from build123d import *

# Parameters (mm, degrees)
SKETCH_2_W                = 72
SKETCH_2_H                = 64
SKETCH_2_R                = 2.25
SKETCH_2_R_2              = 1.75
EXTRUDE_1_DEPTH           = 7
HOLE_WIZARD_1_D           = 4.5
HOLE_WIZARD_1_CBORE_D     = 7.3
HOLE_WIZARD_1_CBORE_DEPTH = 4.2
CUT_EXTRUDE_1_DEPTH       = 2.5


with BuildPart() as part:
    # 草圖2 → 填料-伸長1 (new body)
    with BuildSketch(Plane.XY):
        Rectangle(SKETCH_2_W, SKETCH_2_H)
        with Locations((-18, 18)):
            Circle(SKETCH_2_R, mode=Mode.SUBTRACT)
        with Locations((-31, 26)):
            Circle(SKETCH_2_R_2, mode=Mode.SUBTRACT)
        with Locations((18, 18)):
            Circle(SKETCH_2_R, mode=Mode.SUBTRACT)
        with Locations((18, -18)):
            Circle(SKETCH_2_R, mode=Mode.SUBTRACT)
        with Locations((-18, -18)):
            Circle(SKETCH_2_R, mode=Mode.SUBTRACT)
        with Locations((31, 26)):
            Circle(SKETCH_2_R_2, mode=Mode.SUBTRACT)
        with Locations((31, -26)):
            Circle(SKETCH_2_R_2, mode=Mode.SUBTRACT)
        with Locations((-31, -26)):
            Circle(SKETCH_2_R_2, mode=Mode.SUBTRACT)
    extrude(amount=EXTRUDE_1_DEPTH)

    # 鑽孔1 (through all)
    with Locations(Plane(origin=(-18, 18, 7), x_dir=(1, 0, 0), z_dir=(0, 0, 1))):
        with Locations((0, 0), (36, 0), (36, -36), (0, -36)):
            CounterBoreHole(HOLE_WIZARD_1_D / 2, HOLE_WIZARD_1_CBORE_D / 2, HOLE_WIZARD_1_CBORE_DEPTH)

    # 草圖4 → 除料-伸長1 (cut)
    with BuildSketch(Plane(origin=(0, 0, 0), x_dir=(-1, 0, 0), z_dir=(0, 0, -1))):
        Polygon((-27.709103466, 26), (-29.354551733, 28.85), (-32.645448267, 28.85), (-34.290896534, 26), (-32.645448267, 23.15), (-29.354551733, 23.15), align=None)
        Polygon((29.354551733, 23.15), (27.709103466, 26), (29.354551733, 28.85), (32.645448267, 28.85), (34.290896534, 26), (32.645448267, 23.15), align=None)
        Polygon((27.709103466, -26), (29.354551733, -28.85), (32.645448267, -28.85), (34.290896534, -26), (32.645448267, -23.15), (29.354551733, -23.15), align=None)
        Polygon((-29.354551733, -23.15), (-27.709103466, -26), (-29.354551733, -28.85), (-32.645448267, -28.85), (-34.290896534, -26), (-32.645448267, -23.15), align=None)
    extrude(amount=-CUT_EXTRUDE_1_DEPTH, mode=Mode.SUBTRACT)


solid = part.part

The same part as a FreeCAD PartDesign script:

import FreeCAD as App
import Part
import Sketcher
from FreeCAD import Vector
Q = App.Units.Quantity


def add_polygon(sketch, points):
    """Adds a closed chain of lines whose ends are joined by coincident constraints."""
    first, n = sketch.GeometryCount, len(points)
    for a, b in zip(points, points[1:] + points[:1]):
        sketch.addGeometry(Part.LineSegment(App.Vector(*a, 0), App.Vector(*b, 0)), False)
    for i in range(n):
        sketch.addConstraint(Sketcher.Constraint("Coincident", first + i, 2, first + (i + 1) % n, 1))

doc = App.newDocument("Part")
params = doc.addObject("Spreadsheet::Sheet", "Params")
for row, (alias, value) in enumerate([
    ("sketch1_diameter", "3.5 mm"),
    ("sketch1_diameter2", "4.5 mm"),
    ("sketch1_width", "72 mm"),
    ("sketch1_height", "64 mm"),
    ("pad1_length", "7 mm"),
    ("sketch2_diameter", "4.5 mm"),
    ("hole_diameter", "4.5 mm"),
    ("hole_cbore_diameter", "7.3 mm"),
    ("hole_cbore_depth", "4.2 mm"),
    ("pocket1_length", "2.5 mm"),
], start=1):
    params.set(f"A{row}", alias)
    params.set(f"B{row}", "=" + value)
    params.setAlias(f"B{row}", alias)

body = doc.addObject("PartDesign::Body", "Body")

sketch1 = body.newObject("Sketcher::SketchObject", "Sketch")
sketch1.AttachmentSupport = (doc.getObject("XY_Plane"), [""])
sketch1.MapMode = "FlatFace"
add_polygon(sketch1, [(-36, 32), (-36, -32), (36, -32), (36, 32)])
sketch1.addGeometry(Part.Circle(Vector(-31, -26, 0), Vector(0, 0, 1), 1.8), False)
sketch1.addGeometry(Part.Circle(Vector(-18, -18, 0), Vector(0, 0, 1), 2.2), False)
sketch1.addGeometry(Part.Circle(Vector(31, -26, 0), Vector(0, 0, 1), 1.8), False)
sketch1.addGeometry(Part.Circle(Vector(18, -18, 0), Vector(0, 0, 1), 2.2), False)
sketch1.addGeometry(Part.Circle(Vector(-18, 18, 0), Vector(0, 0, 1), 2.2), False)
sketch1.addGeometry(Part.Circle(Vector(-31, 26, 0), Vector(0, 0, 1), 1.8), False)
sketch1.addGeometry(Part.Circle(Vector(18, 18, 0), Vector(0, 0, 1), 2.2), False)
sketch1.addGeometry(Part.Circle(Vector(31, 26, 0), Vector(0, 0, 1), 1.8), False)
sketch1.addConstraint([
    Sketcher.Constraint("Vertical", 0),
    Sketcher.Constraint("Horizontal", 1),
    Sketcher.Constraint("Vertical", 2),
    Sketcher.Constraint("Horizontal", 3),
    Sketcher.Constraint("Equal", 4, 6),
    Sketcher.Constraint("Equal", 5, 7),
    Sketcher.Constraint("Equal", 7, 8),
    Sketcher.Constraint("Equal", 6, 9),
    Sketcher.Constraint("Equal", 8, 10),
    Sketcher.Constraint("Equal", 9, 11),
    Sketcher.Constraint("Symmetric", 7, 3, 8, 3, -1, 1),
    Sketcher.Constraint("Symmetric", 6, 3, 9, 3, -1, 1),
    Sketcher.Constraint("Symmetric", 5, 3, 10, 3, -1, 1),
    Sketcher.Constraint("Symmetric", 4, 3, 11, 3, -1, 1),
    Sketcher.Constraint("Symmetric", 0, 2, 2, 2, -1, 1),
    Sketcher.Constraint("Symmetric", 4, 3, 6, 3, -2),
    Sketcher.Constraint("Symmetric", 5, 3, 7, 3, -2),
    Sketcher.Constraint("Diameter", 4, Q("3.5 mm")),
    Sketcher.Constraint("Diameter", 5, Q("4.5 mm")),
    Sketcher.Constraint("DistanceX", 1, 1, 1, 2, Q("72 mm")),
    Sketcher.Constraint("DistanceY", 0, 2, 0, 1, Q("64 mm")),
    Sketcher.Constraint("DistanceX", 4, 3, -1, 1, Q("31 mm")),
    Sketcher.Constraint("DistanceY", 4, 3, -1, 1, Q("26 mm")),
    Sketcher.Constraint("DistanceX", 5, 3, -1, 1, Q("18 mm")),
    Sketcher.Constraint("DistanceY", 5, 3, -1, 1, Q("18 mm")),
])
sketch1.setExpression("Constraints[21]", "Params.sketch1_diameter")
sketch1.setExpression("Constraints[22]", "Params.sketch1_diameter2")
sketch1.setExpression("Constraints[23]", "Params.sketch1_width")
sketch1.setExpression("Constraints[24]", "Params.sketch1_height")
pad1 = body.newObject("PartDesign::Pad", "Pad")
pad1.Profile = sketch1
pad1.setExpression("Length", "Params.pad1_length")

sketch2 = body.newObject("Sketcher::SketchObject", "Sketch001")
sketch2.AttachmentSupport = (doc.getObject("XY_Plane"), [""])
sketch2.MapMode = "FlatFace"
sketch2.AttachmentOffset = App.Placement(Vector(0, 0, 7), App.Rotation())
sketch2.addGeometry([
    Part.Circle(Vector(-18, 18, 0), Vector(0, 0, 1), 2.2),
    Part.Circle(Vector(18, 18, 0), Vector(0, 0, 1), 2.2),
    Part.Circle(Vector(18, -18, 0), Vector(0, 0, 1), 2.2),
    Part.Circle(Vector(-18, -18, 0), Vector(0, 0, 1), 2.2),
], False)
sketch2.addConstraint([
    Sketcher.Constraint("Equal", 0, 1),
    Sketcher.Constraint("Equal", 1, 2),
    Sketcher.Constraint("Equal", 2, 3),
    Sketcher.Constraint("Symmetric", 0, 3, 2, 3, -1, 1),
    Sketcher.Constraint("Symmetric", 1, 3, 3, 3, -1, 1),
    Sketcher.Constraint("Symmetric", 0, 3, 1, 3, -2),
    Sketcher.Constraint("Diameter", 0, Q("4.5 mm")),
    Sketcher.Constraint("DistanceX", 0, 3, -1, 1, Q("18 mm")),
    Sketcher.Constraint("DistanceY", -1, 1, 0, 3, Q("18 mm")),
])
sketch2.setExpression("Constraints[6]", "Params.sketch2_diameter")
doc.recompute()
hole = body.newObject("PartDesign::Hole", "Hole")
hole.Profile = sketch2
hole.ThreadType = "None"
hole.setExpression("Diameter", "Params.hole_diameter")
hole.DepthType = "ThroughAll"
hole.HoleCutType = "Counterbore"
hole.setExpression("HoleCutDiameter", "Params.hole_cbore_diameter")
hole.setExpression("HoleCutDepth", "Params.hole_cbore_depth")

sketch3 = body.newObject("Sketcher::SketchObject", "Sketch002")
sketch3.AttachmentSupport = (doc.getObject("XY_Plane"), [""])
sketch3.MapMode = "FlatFace"
add_polygon(sketch3, [(27.7, 26), (29.4, 28.9), (32.6, 28.9), (34.3, 26), (32.6, 23.1), (29.4, 23.1)])
add_polygon(sketch3, [(-27.7, 26), (-29.4, 23.1), (-32.6, 23.1), (-34.3, 26), (-32.6, 28.9), (-29.4, 28.9)])
add_polygon(sketch3, [(-27.7, -26), (-29.4, -28.9), (-32.6, -28.9), (-34.3, -26), (-32.6, -23.1), (-29.4, -23.1)])
add_polygon(sketch3, [(27.7, -26), (29.4, -23.1), (32.6, -23.1), (34.3, -26), (32.6, -28.9), (29.4, -28.9)])
sketch3.addConstraint([
    Sketcher.Constraint("Horizontal", 1),
    Sketcher.Constraint("Horizontal", 4),
    Sketcher.Constraint("Horizontal", 7),
    Sketcher.Constraint("Horizontal", 10),
    Sketcher.Constraint("Horizontal", 13),
    Sketcher.Constraint("Horizontal", 16),
    Sketcher.Constraint("Horizontal", 19),
    Sketcher.Constraint("Horizontal", 22),
    Sketcher.Constraint("Symmetric", 0, 2, 12, 2, -1, 1),
    Sketcher.Constraint("Symmetric", 2, 2, 14, 2, -1, 1),
    Sketcher.Constraint("Symmetric", 3, 2, 15, 2, -1, 1),
    Sketcher.Constraint("Symmetric", 5, 2, 17, 2, -1, 1),
    Sketcher.Constraint("Symmetric", 6, 2, 18, 2, -1, 1),
    Sketcher.Constraint("Symmetric", 8, 2, 20, 2, -1, 1),
    Sketcher.Constraint("Symmetric", 9, 2, 21, 2, -1, 1),
    Sketcher.Constraint("Symmetric", 11, 2, 23, 2, -1, 1),
    Sketcher.Constraint("Symmetric", 4, 2, 6, 2, -2),
    Sketcher.Constraint("Symmetric", 2, 2, 8, 2, -2),
    Sketcher.Constraint("Symmetric", 1, 2, 9, 2, -2),
    Sketcher.Constraint("Symmetric", 5, 2, 11, 2, -2),
    Sketcher.Constraint("Parallel", 0, 3),
    Sketcher.Constraint("Parallel", 2, 5),
    Sketcher.Constraint("Parallel", 3, 6),
    Sketcher.Constraint("Parallel", 5, 8),
    Sketcher.Constraint("Parallel", 8, 11),
    Sketcher.Constraint("Parallel", 11, 14),
    Sketcher.Constraint("Parallel", 14, 17),
    Sketcher.Constraint("Parallel", 17, 20),
    Sketcher.Constraint("Parallel", 20, 23),
    Sketcher.Constraint("Horizontal", 2, 2, 5, 2),
    Sketcher.Constraint("Vertical", 1, 2, 3, 2),
    Sketcher.Constraint("Angle", 0, Q("60 deg")),
    Sketcher.Constraint("DistanceY", -1, 1, 2, 2, Q("26 mm")),
    Sketcher.Constraint("DistanceX", 6, 2, 3, 2, Q("62 mm")),
    Sketcher.Constraint("DistanceY", 3, 2, 1, 2, Q("5.7 mm")),
    Sketcher.Constraint("DistanceX", 1, 1, 1, 2, Q("3.290897 mm")),
])
pocket1 = body.newObject("PartDesign::Pocket", "Pocket")
pocket1.Profile = sketch3
pocket1.setExpression("Length", "Params.pocket1_length")
pocket1.Reversed = True

doc.recompute()
